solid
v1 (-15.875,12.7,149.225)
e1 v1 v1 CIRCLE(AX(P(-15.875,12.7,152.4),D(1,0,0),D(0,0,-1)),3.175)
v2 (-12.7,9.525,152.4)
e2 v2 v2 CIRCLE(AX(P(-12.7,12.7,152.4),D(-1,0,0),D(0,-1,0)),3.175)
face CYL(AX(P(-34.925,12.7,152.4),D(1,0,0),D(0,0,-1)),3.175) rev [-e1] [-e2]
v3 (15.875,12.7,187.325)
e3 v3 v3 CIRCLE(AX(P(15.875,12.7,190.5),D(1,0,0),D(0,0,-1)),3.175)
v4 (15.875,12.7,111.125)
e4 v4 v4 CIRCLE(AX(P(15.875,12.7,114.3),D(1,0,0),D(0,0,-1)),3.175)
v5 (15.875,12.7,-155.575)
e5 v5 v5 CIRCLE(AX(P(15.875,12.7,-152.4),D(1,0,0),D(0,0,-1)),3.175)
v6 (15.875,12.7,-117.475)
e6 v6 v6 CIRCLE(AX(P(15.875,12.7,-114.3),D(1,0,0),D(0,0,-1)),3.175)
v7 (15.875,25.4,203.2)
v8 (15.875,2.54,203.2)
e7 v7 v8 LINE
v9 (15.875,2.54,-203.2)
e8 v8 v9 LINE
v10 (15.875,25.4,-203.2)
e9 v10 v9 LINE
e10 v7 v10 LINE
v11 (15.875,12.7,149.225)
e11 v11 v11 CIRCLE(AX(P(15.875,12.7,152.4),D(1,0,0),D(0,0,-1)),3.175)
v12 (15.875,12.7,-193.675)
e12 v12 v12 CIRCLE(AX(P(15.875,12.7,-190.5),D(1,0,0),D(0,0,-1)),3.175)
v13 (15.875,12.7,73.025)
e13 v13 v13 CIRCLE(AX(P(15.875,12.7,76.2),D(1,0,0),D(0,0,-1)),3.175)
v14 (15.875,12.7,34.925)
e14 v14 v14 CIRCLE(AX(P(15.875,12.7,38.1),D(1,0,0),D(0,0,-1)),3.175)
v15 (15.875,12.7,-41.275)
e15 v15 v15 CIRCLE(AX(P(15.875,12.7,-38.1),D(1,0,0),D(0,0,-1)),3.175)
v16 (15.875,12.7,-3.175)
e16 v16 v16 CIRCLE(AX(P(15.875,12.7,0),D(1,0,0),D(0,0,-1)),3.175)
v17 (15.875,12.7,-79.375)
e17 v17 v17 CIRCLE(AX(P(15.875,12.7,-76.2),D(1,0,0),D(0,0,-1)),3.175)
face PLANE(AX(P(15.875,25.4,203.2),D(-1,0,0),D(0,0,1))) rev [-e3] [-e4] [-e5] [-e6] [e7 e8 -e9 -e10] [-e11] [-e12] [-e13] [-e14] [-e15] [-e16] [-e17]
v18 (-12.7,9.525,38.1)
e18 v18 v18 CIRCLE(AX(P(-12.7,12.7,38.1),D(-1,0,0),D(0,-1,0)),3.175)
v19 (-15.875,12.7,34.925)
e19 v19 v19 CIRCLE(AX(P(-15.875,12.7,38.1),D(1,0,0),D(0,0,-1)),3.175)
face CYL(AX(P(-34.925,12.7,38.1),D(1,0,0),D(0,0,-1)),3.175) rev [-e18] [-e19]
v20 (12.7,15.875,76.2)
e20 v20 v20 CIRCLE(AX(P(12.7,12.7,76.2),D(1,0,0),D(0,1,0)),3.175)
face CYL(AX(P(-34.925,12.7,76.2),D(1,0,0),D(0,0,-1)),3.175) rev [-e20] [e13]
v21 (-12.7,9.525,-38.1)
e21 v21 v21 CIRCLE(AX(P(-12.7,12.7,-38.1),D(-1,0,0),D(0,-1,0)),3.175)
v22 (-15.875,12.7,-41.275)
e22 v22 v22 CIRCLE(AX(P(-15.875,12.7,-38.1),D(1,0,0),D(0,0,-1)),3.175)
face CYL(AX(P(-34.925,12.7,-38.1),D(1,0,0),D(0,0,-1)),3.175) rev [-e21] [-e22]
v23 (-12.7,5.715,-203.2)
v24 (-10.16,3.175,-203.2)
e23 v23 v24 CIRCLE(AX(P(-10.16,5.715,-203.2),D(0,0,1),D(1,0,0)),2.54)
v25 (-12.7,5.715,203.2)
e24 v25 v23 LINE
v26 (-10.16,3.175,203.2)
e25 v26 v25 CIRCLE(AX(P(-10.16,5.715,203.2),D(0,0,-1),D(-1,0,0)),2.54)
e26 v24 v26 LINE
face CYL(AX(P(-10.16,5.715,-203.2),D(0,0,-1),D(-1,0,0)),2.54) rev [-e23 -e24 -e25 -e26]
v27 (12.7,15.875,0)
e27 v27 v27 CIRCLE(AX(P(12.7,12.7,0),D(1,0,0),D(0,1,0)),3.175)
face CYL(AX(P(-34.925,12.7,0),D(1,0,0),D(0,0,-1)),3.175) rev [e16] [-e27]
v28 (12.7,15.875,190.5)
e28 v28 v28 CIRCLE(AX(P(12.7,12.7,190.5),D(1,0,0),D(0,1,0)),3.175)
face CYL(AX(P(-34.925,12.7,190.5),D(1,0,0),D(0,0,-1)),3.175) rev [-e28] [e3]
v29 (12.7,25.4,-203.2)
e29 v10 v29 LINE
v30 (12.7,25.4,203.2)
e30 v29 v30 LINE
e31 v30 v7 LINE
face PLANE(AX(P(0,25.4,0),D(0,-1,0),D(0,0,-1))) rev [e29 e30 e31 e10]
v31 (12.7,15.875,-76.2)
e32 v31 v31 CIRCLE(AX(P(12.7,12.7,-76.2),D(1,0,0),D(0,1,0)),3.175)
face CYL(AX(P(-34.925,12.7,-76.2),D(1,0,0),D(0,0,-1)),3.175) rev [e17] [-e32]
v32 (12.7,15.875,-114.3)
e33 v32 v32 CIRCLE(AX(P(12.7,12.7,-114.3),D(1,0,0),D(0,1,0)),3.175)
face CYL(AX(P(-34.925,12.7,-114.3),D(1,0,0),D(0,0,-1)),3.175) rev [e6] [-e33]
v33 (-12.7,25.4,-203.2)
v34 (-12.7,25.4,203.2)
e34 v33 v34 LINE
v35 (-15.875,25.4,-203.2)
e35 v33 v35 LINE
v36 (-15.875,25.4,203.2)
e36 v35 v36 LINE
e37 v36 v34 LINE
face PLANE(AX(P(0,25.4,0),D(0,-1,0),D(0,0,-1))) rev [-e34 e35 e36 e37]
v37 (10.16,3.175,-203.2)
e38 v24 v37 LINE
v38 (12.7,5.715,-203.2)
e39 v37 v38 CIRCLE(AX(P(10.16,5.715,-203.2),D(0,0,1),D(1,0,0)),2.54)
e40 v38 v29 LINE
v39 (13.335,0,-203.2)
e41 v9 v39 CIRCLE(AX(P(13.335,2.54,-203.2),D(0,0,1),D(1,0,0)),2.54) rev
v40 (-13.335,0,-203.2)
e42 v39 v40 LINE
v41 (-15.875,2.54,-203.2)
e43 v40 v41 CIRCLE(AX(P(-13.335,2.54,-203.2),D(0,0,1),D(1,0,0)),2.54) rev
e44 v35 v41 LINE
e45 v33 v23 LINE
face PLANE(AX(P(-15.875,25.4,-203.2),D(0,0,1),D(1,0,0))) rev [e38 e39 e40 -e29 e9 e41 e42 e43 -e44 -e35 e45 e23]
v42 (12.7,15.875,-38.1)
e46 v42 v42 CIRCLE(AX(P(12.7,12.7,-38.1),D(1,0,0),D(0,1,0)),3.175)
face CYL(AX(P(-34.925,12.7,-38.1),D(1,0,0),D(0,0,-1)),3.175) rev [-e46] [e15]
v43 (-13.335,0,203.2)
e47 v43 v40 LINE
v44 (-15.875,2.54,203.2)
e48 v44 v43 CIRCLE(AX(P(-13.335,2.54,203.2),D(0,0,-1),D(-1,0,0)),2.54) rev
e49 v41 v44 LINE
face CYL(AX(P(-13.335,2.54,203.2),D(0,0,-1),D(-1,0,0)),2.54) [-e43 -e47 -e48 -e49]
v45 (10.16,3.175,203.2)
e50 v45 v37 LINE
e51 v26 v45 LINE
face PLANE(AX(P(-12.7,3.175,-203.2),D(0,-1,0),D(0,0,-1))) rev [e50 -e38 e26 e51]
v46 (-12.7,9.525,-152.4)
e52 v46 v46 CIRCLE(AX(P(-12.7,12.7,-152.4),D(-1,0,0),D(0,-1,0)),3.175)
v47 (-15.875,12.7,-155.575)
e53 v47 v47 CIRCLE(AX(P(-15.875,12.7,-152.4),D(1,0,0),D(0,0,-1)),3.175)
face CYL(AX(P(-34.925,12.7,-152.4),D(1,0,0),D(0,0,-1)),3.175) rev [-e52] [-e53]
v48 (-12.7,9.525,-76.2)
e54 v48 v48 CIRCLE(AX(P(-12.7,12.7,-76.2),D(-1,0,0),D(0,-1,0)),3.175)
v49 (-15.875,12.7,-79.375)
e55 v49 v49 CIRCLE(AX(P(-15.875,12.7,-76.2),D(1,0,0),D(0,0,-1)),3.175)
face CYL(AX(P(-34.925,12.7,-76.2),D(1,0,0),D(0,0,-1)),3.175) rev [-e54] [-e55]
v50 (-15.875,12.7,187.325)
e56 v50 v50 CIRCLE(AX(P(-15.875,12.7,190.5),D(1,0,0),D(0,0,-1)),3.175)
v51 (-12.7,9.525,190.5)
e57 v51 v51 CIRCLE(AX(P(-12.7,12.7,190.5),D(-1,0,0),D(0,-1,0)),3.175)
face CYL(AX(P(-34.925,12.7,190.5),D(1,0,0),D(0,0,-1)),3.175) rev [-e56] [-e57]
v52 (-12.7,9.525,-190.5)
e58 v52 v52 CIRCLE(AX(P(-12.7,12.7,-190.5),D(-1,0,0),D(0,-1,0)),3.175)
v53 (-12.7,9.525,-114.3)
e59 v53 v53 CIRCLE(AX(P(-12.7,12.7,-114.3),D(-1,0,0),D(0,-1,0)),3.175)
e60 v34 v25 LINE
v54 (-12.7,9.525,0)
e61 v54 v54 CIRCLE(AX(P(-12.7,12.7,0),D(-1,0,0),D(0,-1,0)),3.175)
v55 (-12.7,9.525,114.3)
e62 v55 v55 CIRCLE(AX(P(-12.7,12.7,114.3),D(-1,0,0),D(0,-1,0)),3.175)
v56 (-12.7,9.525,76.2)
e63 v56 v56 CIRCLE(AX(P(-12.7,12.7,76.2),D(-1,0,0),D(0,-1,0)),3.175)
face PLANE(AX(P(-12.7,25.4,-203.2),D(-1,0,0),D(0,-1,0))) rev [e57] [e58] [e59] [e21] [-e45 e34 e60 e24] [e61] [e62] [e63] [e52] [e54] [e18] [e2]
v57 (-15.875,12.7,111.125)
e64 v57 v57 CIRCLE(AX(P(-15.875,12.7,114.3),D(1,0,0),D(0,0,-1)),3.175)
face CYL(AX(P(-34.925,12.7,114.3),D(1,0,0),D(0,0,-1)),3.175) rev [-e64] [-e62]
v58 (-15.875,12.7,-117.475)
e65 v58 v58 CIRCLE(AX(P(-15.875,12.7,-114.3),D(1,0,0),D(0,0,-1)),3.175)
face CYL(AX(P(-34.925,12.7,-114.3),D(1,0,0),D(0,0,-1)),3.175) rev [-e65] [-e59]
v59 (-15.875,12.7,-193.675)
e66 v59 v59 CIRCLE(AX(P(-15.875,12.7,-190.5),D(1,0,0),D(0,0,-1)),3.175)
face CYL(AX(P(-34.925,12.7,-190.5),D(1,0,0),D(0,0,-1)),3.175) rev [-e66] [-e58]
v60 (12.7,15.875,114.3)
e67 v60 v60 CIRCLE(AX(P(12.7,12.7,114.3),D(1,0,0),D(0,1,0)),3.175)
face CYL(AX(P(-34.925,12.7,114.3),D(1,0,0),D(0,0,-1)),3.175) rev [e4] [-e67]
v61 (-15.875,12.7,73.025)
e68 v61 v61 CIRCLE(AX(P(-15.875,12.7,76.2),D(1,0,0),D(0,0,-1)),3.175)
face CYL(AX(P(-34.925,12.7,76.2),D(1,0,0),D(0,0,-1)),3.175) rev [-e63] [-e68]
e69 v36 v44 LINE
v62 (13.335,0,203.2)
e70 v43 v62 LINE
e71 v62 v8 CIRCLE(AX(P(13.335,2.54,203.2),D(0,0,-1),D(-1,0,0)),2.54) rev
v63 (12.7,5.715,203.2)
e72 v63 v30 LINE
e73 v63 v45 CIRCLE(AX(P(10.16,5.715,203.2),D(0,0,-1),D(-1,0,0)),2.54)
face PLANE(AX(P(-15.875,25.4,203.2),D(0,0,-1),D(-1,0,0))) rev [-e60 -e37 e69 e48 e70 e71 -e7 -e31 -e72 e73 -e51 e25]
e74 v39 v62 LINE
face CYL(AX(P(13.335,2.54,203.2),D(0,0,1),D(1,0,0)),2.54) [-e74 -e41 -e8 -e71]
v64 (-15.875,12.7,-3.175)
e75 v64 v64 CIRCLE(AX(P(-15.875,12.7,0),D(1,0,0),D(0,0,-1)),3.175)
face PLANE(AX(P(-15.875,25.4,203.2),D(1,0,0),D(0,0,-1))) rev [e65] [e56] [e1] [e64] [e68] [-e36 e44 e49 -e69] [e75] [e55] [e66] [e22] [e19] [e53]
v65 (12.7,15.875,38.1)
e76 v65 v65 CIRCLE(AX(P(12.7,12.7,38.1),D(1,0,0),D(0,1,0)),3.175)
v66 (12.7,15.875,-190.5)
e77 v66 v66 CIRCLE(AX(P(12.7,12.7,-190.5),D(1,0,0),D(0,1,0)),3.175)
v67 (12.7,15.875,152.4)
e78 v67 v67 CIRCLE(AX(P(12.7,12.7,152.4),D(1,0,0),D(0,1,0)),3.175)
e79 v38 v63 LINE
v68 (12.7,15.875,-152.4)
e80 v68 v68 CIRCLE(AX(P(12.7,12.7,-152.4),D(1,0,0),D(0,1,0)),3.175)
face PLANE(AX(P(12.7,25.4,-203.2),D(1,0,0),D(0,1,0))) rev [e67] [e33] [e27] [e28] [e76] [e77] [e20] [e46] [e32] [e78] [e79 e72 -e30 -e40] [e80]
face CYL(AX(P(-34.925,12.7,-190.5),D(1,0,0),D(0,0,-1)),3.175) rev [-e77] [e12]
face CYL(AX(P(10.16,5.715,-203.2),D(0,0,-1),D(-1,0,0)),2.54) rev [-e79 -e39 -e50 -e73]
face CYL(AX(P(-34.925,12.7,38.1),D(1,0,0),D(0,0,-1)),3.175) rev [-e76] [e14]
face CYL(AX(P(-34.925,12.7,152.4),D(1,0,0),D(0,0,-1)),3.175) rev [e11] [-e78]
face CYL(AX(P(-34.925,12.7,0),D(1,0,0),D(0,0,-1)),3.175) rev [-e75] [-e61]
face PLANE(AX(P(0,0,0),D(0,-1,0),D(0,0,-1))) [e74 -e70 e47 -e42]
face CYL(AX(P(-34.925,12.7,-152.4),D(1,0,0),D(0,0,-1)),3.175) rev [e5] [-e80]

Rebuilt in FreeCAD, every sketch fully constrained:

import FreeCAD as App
import Part
import Sketcher
Q = App.Units.Quantity


def edges_at(feature, points):
    """Names of the edges that pass closest to the given points."""
    edges = feature.Shape.Edges
    near = lambda p: min(range(len(edges)), key=lambda i: edges[i].distToShape(Part.Vertex(*p))[0])
    return sorted({f"Edge{near(p) + 1}" for p in points})

doc = App.newDocument("Part")
body = doc.addObject("PartDesign::Body", "Body")

# Sketch on XZ plane
sketch1 = body.newObject("Sketcher::SketchObject", "Sketch")
sketch1.AttachmentSupport = (doc.getObject("XZ_Plane"), [""])
sketch1.MapMode = "FlatFace"
sketch1.addGeometry(Part.LineSegment(App.Vector(-15.875, -203.2, 0), App.Vector(-15.875, 203.2, 0)), False)
sketch1.addGeometry(Part.LineSegment(App.Vector(-15.875, 203.2, 0), App.Vector(15.875, 203.2, 0)), False)
sketch1.addGeometry(Part.LineSegment(App.Vector(15.875, 203.2, 0), App.Vector(15.875, -203.2, 0)), False)
sketch1.addGeometry(Part.LineSegment(App.Vector(15.875, -203.2, 0), App.Vector(-15.875, -203.2, 0)), False)
sketch1.addConstraint(Sketcher.Constraint("Coincident", 0, 2, 1, 1))
sketch1.addConstraint(Sketcher.Constraint("Coincident", 1, 2, 2, 1))
sketch1.addConstraint(Sketcher.Constraint("Coincident", 2, 2, 3, 1))
sketch1.addConstraint(Sketcher.Constraint("Coincident", 3, 2, 0, 1))
sketch1.addConstraint(Sketcher.Constraint("Vertical", 0))
sketch1.addConstraint(Sketcher.Constraint("Horizontal", 1))
sketch1.addConstraint(Sketcher.Constraint("Vertical", 2))
sketch1.addConstraint(Sketcher.Constraint("Horizontal", 3))
sketch1.addConstraint(Sketcher.Constraint("Symmetric", 0, 2, 2, 2, -1, 1))
sketch1.addConstraint(Sketcher.Constraint("DistanceY", 0, 1, 0, 2, Q("16 in")))
sketch1.addConstraint(Sketcher.Constraint("DistanceX", 1, 1, 1, 2, Q("1.25 in")))
pad1 = body.newObject("PartDesign::Pad", "Pad")
pad1.Profile = sketch1
pad1.Length = Q("1 in")
pad1.Reversed = True

# Sketch on XY plane
sketch2 = body.newObject("Sketcher::SketchObject", "Sketch001")
sketch2.AttachmentSupport = (doc.getObject("XY_Plane"), [""])
sketch2.MapMode = "FlatFace"
sketch2.AttachmentOffset = App.Placement(App.Vector(0, 0, 8 * 25.4), App.Rotation())
sketch2.addGeometry(Part.LineSegment(App.Vector(-12.7, 25.4, 0), App.Vector(-12.7, 3.175, 0)), False)
sketch2.addGeometry(Part.LineSegment(App.Vector(-12.7, 3.175, 0), App.Vector(12.7, 3.175, 0)), False)
sketch2.addGeometry(Part.LineSegment(App.Vector(12.7, 3.175, 0), App.Vector(12.7, 25.4, 0)), False)
sketch2.addGeometry(Part.LineSegment(App.Vector(12.7, 25.4, 0), App.Vector(-12.7, 25.4, 0)), False)
sketch2.addConstraint(Sketcher.Constraint("Coincident", 0, 2, 1, 1))
sketch2.addConstraint(Sketcher.Constraint("Coincident", 1, 2, 2, 1))
sketch2.addConstraint(Sketcher.Constraint("Coincident", 2, 2, 3, 1))
sketch2.addConstraint(Sketcher.Constraint("Coincident", 3, 2, 0, 1))
sketch2.addConstraint(Sketcher.Constraint("Vertical", 0))
sketch2.addConstraint(Sketcher.Constraint("Horizontal", 1))
sketch2.addConstraint(Sketcher.Constraint("Vertical", 2))
sketch2.addConstraint(Sketcher.Constraint("Horizontal", 3))
sketch2.addConstraint(Sketcher.Constraint("DistanceX", 1, 1, 1, 2, Q("1 in")))
sketch2.addConstraint(Sketcher.Constraint("DistanceY", -1, 1, 2, 2, Q("1 in")))
sketch2.addConstraint(Sketcher.Constraint("DistanceX", 0, 2, -1, 1, Q("0.5 in")))
sketch2.addConstraint(Sketcher.Constraint("DistanceY", 0, 2, 0, 1, Q("0.875 in")))
pocket1 = body.newObject("PartDesign::Pocket", "Pocket")
pocket1.Profile = sketch2
pocket1.Length = Q("16 in")
doc.recompute()

fillet = body.newObject("PartDesign::Fillet", "Fillet")
fillet.Base = (pocket1, edges_at(pocket1, [(-15.875, 0, 0), (15.875, 0, 0)]))
fillet.Radius = Q("0.1 in")
doc.recompute()

fillet2 = body.newObject("PartDesign::Fillet", "Fillet001")
fillet2.Base = (fillet, edges_at(fillet, [(-12.7, 3.175, 0), (12.7, 3.175, 0)]))
fillet2.Radius = Q("0.1 in")

# Sketch on YZ plane
sketch3 = body.newObject("Sketcher::SketchObject", "Sketch002")
sketch3.AttachmentSupport = (doc.getObject("YZ_Plane"), [""])
sketch3.MapMode = "FlatFace"
sketch3.AttachmentOffset = App.Placement(App.Vector(0, 0, 0.625 * 25.4), App.Rotation())
sketch3.addGeometry(Part.Circle(App.Vector(12.7, 190.5, 0), App.Vector(0, 0, 1), 3.175), False)
sketch3.addGeometry(Part.Circle(App.Vector(12.7, 152.4, 0), App.Vector(0, 0, 1), 3.175), False)
sketch3.addGeometry(Part.Circle(App.Vector(12.7, 114.3, 0), App.Vector(0, 0, 1), 3.175), False)
sketch3.addGeometry(Part.Circle(App.Vector(12.7, 76.2, 0), App.Vector(0, 0, 1), 3.175), False)
sketch3.addGeometry(Part.Circle(App.Vector(12.7, 38.1, 0), App.Vector(0, 0, 1), 3.175), False)
sketch3.addGeometry(Part.Circle(App.Vector(12.7, 0, 0), App.Vector(0, 0, 1), 3.175), False)
sketch3.addGeometry(Part.Circle(App.Vector(12.7, -38.1, 0), App.Vector(0, 0, 1), 3.175), False)
sketch3.addGeometry(Part.Circle(App.Vector(12.7, -76.2, 0), App.Vector(0, 0, 1), 3.175), False)
sketch3.addGeometry(Part.Circle(App.Vector(12.7, -114.3, 0), App.Vector(0, 0, 1), 3.175), False)
sketch3.addGeometry(Part.Circle(App.Vector(12.7, -152.4, 0), App.Vector(0, 0, 1), 3.175), False)
sketch3.addGeometry(Part.Circle(App.Vector(12.7, -190.5, 0), App.Vector(0, 0, 1), 3.175), False)
sketch3.addConstraint(Sketcher.Constraint("Equal", 0, 1))
sketch3.addConstraint(Sketcher.Constraint("Equal", 1, 2))
sketch3.addConstraint(Sketcher.Constraint("Equal", 2, 3))
sketch3.addConstraint(Sketcher.Constraint("Equal", 3, 4))
sketch3.addConstraint(Sketcher.Constraint("Equal", 4, 5))
sketch3.addConstraint(Sketcher.Constraint("Equal", 5, 6))
sketch3.addConstraint(Sketcher.Constraint("Equal", 6, 7))
sketch3.addConstraint(Sketcher.Constraint("Equal", 7, 8))
sketch3.addConstraint(Sketcher.Constraint("Equal", 8, 9))
sketch3.addConstraint(Sketcher.Constraint("Equal", 9, 10))
sketch3.addConstraint(Sketcher.Constraint("Symmetric", 4, 3, 6, 3, -1))
sketch3.addConstraint(Sketcher.Constraint("Symmetric", 3, 3, 7, 3, -1))
sketch3.addConstraint(Sketcher.Constraint("Symmetric", 2, 3, 8, 3, -1))
sketch3.addConstraint(Sketcher.Constraint("Symmetric", 1, 3, 9, 3, -1))
sketch3.addConstraint(Sketcher.Constraint("Symmetric", 0, 3, 10, 3, -1))
sketch3.addConstraint(Sketcher.Constraint("PointOnObject", 5, 3, -1))
sketch3.addConstraint(Sketcher.Constraint("Vertical", 0, 3, 1, 3))
sketch3.addConstraint(Sketcher.Constraint("Vertical", 1, 3, 2, 3))
sketch3.addConstraint(Sketcher.Constraint("Vertical", 2, 3, 3, 3))
sketch3.addConstraint(Sketcher.Constraint("Vertical", 3, 3, 4, 3))
sketch3.addConstraint(Sketcher.Constraint("Vertical", 4, 3, 5, 3))
sketch3.addConstraint(Sketcher.Constraint("Diameter", 0, Q("0.25 in")))
sketch3.addConstraint(Sketcher.Constraint("DistanceY", -1, 1, 1, 3, Q("6 in")))
sketch3.addConstraint(Sketcher.Constraint("DistanceY", -1, 1, 3, 3, Q("3 in")))
sketch3.addConstraint(Sketcher.Constraint("DistanceY", 2, 3, 0, 3, Q("3 in")))
sketch3.addConstraint(Sketcher.Constraint("DistanceY", 4, 3, 2, 3, Q("3 in")))
sketch3.addConstraint(Sketcher.Constraint("DistanceY", 6, 3, 4, 3, Q("3 in")))
sketch3.addConstraint(Sketcher.Constraint("DistanceX", -1, 1, 0, 3, Q("0.5 in")))
pocket2 = body.newObject("PartDesign::Pocket", "Pocket001")
pocket2.Profile = sketch3
pocket2.Length = Q("2 in")

doc.recompute()
